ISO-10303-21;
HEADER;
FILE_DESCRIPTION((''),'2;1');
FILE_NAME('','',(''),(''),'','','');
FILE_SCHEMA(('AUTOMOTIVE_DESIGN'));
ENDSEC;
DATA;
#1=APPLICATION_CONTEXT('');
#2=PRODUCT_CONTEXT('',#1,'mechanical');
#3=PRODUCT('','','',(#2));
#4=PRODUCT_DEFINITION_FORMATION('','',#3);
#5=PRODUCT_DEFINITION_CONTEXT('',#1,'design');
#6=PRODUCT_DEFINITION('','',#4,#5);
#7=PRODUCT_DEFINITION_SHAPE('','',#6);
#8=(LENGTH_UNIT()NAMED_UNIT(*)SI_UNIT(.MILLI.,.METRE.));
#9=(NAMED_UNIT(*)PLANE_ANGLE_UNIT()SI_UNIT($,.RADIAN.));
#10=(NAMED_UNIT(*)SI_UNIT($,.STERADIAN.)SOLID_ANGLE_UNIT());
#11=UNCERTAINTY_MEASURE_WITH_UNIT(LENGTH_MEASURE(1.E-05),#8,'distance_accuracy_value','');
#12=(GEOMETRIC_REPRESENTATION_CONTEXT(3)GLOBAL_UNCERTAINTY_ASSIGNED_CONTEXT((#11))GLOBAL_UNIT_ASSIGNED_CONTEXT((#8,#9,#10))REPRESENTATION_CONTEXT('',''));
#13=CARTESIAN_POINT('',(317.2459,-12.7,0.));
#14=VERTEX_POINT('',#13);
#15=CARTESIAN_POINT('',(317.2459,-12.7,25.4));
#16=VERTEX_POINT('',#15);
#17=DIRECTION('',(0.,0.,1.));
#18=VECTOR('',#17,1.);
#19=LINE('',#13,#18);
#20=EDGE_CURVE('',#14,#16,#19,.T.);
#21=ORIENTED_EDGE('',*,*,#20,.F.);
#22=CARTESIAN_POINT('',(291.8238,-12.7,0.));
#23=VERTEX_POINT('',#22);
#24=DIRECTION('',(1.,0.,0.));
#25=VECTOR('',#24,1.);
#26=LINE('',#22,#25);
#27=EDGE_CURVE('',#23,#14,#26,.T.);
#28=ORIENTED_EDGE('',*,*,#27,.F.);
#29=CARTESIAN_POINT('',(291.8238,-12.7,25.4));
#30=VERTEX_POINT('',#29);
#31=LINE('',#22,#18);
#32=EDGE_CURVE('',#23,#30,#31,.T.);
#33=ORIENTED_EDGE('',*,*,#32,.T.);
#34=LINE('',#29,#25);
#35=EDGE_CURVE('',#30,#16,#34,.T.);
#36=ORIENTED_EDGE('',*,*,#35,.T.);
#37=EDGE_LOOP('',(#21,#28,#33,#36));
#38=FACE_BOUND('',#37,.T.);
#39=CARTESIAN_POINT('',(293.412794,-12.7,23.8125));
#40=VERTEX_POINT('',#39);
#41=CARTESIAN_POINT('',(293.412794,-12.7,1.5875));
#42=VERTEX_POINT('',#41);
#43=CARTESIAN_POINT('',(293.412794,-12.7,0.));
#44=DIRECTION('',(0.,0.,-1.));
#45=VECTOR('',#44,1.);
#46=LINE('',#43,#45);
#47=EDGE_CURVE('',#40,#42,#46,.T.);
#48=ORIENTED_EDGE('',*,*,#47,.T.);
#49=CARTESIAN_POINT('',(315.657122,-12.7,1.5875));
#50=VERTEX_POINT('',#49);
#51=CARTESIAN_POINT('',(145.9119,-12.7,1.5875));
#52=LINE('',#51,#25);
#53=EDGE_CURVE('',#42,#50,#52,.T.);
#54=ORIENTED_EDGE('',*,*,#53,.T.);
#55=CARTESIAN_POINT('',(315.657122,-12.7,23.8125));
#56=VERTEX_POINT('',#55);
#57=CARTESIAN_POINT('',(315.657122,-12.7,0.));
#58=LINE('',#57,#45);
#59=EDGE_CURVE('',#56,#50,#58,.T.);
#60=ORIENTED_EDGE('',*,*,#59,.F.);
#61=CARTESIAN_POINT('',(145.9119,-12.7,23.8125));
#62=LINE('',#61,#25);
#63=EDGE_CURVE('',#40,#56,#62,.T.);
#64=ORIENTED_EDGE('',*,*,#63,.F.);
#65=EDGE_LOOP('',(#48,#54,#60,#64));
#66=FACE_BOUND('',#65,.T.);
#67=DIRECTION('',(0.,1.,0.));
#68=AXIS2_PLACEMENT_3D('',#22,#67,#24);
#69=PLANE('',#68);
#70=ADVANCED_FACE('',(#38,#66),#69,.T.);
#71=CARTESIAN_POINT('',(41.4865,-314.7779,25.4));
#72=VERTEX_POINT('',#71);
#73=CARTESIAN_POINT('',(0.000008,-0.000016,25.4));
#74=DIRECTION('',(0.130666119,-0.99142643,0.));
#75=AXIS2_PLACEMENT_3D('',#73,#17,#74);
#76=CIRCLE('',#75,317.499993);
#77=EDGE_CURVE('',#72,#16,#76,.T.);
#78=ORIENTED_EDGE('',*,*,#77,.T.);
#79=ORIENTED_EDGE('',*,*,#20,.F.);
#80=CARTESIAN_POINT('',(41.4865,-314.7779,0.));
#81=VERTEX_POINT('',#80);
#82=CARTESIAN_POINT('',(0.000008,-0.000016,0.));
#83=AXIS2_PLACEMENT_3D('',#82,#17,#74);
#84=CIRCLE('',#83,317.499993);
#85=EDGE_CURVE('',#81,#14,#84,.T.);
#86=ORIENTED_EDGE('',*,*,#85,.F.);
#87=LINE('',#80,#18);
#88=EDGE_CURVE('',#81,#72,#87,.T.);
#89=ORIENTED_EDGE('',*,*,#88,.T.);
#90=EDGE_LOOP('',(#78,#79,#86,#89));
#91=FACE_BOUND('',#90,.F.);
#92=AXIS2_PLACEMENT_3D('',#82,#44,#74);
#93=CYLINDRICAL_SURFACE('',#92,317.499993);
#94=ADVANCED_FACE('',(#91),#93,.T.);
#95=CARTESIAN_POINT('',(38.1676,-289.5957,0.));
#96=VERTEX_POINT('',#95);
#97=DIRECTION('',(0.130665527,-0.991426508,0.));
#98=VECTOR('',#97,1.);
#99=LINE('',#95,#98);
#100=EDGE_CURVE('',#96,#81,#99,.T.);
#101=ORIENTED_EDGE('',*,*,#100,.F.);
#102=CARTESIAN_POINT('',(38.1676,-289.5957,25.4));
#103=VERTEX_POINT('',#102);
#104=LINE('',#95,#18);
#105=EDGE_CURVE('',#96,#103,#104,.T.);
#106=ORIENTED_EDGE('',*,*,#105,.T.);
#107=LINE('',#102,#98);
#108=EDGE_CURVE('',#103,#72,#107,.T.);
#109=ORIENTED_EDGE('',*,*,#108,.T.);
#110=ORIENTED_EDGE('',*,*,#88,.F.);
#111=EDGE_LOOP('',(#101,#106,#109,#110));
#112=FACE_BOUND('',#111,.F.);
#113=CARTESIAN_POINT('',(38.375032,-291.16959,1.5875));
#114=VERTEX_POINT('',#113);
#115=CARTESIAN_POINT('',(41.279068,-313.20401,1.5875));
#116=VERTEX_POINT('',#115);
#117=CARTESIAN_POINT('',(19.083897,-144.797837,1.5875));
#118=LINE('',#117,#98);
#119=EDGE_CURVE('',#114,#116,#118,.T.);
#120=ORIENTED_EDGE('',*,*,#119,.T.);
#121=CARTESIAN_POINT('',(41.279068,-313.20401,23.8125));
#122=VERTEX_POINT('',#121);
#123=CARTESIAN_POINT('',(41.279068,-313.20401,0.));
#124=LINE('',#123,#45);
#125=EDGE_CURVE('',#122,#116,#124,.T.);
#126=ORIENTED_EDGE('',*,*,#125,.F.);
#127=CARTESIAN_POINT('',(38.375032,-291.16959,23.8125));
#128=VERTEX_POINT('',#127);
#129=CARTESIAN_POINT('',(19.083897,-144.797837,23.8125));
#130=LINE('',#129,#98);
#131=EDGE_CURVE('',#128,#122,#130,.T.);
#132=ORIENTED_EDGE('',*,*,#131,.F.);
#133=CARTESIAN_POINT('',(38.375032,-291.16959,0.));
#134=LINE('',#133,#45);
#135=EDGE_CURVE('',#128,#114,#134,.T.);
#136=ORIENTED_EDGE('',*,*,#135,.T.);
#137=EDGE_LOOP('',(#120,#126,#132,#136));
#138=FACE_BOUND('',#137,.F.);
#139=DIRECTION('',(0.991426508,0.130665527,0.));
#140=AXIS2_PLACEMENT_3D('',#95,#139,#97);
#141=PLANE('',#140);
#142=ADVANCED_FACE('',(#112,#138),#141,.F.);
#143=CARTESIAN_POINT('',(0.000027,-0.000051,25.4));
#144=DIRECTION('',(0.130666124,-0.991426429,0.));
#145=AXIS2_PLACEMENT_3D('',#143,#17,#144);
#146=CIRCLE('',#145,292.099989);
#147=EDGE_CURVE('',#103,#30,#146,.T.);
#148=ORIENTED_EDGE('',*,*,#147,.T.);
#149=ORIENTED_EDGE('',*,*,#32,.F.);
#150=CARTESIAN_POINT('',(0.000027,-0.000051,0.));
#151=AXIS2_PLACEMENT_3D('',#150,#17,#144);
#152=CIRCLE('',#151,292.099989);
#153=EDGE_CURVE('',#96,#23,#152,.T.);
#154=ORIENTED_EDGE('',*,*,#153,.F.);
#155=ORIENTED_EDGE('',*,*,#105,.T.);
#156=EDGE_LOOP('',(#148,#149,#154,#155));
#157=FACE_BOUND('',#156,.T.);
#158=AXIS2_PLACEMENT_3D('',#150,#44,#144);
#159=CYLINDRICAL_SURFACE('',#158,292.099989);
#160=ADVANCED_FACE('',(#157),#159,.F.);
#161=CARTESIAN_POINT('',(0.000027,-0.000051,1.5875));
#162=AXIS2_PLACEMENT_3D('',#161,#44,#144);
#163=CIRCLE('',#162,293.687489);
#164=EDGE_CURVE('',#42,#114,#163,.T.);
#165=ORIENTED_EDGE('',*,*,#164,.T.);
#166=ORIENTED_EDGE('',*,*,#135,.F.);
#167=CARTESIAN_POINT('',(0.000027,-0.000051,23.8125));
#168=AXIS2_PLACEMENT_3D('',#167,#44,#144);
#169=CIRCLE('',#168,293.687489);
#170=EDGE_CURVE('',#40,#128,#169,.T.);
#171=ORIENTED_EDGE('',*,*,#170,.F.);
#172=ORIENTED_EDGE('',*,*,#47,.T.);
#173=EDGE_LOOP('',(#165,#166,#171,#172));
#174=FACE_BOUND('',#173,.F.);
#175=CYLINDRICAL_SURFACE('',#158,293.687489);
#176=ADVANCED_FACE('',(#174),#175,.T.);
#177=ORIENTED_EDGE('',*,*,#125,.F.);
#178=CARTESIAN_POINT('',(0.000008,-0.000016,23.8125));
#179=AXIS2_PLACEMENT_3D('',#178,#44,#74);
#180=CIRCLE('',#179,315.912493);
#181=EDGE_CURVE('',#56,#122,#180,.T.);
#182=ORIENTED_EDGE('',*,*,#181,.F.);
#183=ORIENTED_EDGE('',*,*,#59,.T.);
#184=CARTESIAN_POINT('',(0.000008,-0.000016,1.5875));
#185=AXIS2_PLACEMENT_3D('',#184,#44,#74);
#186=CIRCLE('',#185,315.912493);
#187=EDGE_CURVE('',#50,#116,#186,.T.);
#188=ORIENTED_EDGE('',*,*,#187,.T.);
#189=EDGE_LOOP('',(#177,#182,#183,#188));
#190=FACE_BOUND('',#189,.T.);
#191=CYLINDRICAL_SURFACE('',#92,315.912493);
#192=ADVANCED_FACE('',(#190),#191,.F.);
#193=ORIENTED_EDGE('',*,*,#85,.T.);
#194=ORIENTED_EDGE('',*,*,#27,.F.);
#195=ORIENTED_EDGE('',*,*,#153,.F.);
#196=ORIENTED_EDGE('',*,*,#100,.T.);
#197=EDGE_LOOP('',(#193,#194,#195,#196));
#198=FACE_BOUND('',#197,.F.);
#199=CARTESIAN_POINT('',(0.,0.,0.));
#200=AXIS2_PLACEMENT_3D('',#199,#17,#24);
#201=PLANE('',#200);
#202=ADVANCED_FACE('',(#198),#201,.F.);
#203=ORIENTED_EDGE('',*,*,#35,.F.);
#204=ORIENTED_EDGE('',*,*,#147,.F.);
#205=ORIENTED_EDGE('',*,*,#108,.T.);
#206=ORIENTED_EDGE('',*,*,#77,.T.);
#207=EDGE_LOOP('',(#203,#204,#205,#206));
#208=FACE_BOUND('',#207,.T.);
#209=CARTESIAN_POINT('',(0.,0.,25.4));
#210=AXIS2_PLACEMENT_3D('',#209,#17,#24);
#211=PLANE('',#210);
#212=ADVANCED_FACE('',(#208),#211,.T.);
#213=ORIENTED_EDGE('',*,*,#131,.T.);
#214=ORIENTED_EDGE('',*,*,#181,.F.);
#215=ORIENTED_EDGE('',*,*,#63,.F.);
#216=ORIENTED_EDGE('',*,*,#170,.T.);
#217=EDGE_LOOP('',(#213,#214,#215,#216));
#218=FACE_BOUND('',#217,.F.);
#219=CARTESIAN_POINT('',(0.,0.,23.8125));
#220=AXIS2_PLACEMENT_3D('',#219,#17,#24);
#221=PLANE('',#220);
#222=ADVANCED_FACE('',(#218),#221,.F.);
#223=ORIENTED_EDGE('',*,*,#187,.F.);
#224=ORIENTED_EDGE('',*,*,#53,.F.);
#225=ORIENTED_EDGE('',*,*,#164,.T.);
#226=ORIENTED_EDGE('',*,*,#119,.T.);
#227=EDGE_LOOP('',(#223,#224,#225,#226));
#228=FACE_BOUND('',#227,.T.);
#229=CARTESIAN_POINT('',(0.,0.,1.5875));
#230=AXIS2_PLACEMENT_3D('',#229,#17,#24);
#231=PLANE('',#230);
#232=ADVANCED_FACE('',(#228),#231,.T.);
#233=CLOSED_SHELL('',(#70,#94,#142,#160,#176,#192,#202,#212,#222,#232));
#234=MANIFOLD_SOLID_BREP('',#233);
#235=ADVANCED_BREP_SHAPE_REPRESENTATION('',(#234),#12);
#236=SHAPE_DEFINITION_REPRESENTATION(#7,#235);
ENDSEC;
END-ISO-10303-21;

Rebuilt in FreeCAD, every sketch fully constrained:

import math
import FreeCAD as App
import Part
import Sketcher
Q = App.Units.Quantity


def faces_at(feature, points):
    """Names of the faces that lie closest to the given points."""
    faces = feature.Shape.Faces
    near = lambda p: min(range(len(faces)), key=lambda i: faces[i].distToShape(Part.Vertex(*p))[0])
    return sorted({f"Face{near(p) + 1}" for p in points})

doc = App.newDocument("Part")
body = doc.addObject("PartDesign::Body", "Body")

sketch1 = body.newObject("Sketcher::SketchObject", "Sketch")
sketch1.AttachmentSupport = (doc.getObject("XY_Plane"), [""])
sketch1.MapMode = "FlatFace"
sketch1.addGeometry([
    Part.ArcOfCircle(Part.Circle(App.Vector(0, 0, 0), App.Vector(0, 0, 1), 292), math.radians(-82), math.radians(-2)),
    Part.LineSegment(App.Vector(38, -290, 0), App.Vector(41, -315, 0)),
    Part.ArcOfCircle(Part.Circle(App.Vector(0, 0, 0), App.Vector(0, 0, 1), 318), math.radians(-82), math.radians(-2)),
    Part.LineSegment(App.Vector(317, -13, 0), App.Vector(292, -13, 0)),
], False)
sketch1.addConstraint([
    Sketcher.Constraint("Coincident", 0, 1, 1, 1),
    Sketcher.Constraint("Coincident", 1, 2, 2, 1),
    Sketcher.Constraint("Coincident", 2, 2, 3, 1),
    Sketcher.Constraint("Coincident", 3, 2, 0, 2),
    Sketcher.Constraint("Horizontal", 3),
    Sketcher.Constraint("Coincident", 0, 3, -1, 1),
    Sketcher.Constraint("Coincident", 2, 3, -1, 1),
    Sketcher.Constraint("Radius", 0, Q("11.5 in")),
    Sketcher.Constraint("Distance", 1, Q("1 in")),
    Sketcher.Constraint("DistanceY", 2, 2, -1, 1, Q("0.5 in")),
    Sketcher.Constraint("DistanceY", 0, 1, -1, 1, Q("11.4014 in")),
    Sketcher.Constraint("DistanceX", 1, 2, 3, 2, Q("9.8558 in")),
])
pad1 = body.newObject("PartDesign::Pad", "Pad")
pad1.Profile = sketch1
pad1.Length = Q("1 in")
doc.recompute()

thickness = body.newObject("PartDesign::Thickness", "Thickness")
thickness.Base = (pad1, faces_at(pad1, [(300.298, -12.7, 8.467), (40.38, -306.384, 8.467)]))
thickness.Value = Q("0.0625 in")
thickness.Reversed = True
thickness.Join = "Intersection"

doc.recompute()
